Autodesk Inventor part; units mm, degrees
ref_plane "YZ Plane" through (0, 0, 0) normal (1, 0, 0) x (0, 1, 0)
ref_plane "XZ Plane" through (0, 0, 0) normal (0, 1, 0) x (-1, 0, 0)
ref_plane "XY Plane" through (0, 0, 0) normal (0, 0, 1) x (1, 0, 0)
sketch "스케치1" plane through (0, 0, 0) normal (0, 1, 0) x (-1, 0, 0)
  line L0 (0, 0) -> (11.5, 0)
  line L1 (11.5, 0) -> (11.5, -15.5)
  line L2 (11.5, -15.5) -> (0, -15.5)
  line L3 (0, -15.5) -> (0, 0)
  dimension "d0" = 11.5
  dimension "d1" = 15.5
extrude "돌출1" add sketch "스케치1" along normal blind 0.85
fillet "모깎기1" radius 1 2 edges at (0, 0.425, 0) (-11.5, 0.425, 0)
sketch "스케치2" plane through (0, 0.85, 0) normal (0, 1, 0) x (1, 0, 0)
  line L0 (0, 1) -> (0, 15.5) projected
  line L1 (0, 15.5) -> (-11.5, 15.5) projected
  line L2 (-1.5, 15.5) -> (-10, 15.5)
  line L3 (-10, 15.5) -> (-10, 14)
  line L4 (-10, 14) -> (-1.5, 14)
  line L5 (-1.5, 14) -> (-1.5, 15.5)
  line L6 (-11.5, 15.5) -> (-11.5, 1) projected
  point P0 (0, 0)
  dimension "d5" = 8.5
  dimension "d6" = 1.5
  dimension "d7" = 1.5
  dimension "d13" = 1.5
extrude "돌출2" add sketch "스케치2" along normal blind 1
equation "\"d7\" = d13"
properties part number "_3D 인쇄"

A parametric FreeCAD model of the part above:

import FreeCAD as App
import Part
import Sketcher
from FreeCAD import Vector


def edges_at(feature, points):
    """Names of the edges that pass closest to the given points."""
    edges = feature.Shape.Edges
    near = lambda p: min(range(len(edges)), key=lambda i: edges[i].distToShape(Part.Vertex(*p))[0])
    return sorted({f"Edge{near(p) + 1}" for p in points})


def add_polygon(sketch, points):
    """Adds a closed chain of lines whose ends are joined by coincident constraints."""
    first, n = sketch.GeometryCount, len(points)
    for a, b in zip(points, points[1:] + points[:1]):
        sketch.addGeometry(Part.LineSegment(App.Vector(*a, 0), App.Vector(*b, 0)), False)
    for i in range(n):
        sketch.addConstraint(Sketcher.Constraint("Coincident", first + i, 2, first + (i + 1) % n, 1))

doc = App.newDocument("Part")
body = doc.addObject("PartDesign::Body", "Body")

# Sketch on XZ plane
sketch1 = doc.addObject("Sketcher::SketchObject", "Sketch")
body.addObject(sketch1)
sketch1.AttachmentSupport = (doc.XZ_Plane, [""])
sketch1.MapMode = "FlatFace"
add_polygon(sketch1, [(-12, 0), (0, 0), (0, -16), (-12, -16)])  # lines 0-3
sketch1.addConstraint([
    Sketcher.Constraint("Horizontal", 0),
    Sketcher.Constraint("Vertical", 1),
    Sketcher.Constraint("Horizontal", 2),
    Sketcher.Constraint("Vertical", 3),
    Sketcher.Constraint("Coincident", 0, 2, -1, 1),
    Sketcher.Constraint("DistanceX", 0, 1, 0, 2, 11.5),
    Sketcher.Constraint("DistanceY", 1, 2, 1, 1, 15.5),
])
pad1 = doc.addObject("PartDesign::Pad", "Pad")
body.addObject(pad1)
pad1.Profile = sketch1
pad1.Length = 0.85
pad1.Reversed = True
doc.recompute()

fillet = doc.addObject("PartDesign::Fillet", "Fillet")
body.addObject(fillet)
fillet.Base = (pad1, edges_at(pad1, [(0, 0.425, 0), (-11.5, 0.425, 0)]))
fillet.Radius = 1

# Sketch on XZ plane
sketch2 = doc.addObject("Sketcher::SketchObject", "Sketch001")
body.addObject(sketch2)
sketch2.AttachmentSupport = (doc.XZ_Plane, [""])
sketch2.MapMode = "FlatFace"
sketch2.AttachmentOffset = App.Placement(Vector(0, 0, -0.85), App.Rotation())
add_polygon(sketch2, [(-1.5, -14), (-1.5, -15.5), (-10, -15.5), (-10, -14)])  # lines 0-3
sketch2.addConstraint([
    Sketcher.Constraint("Vertical", 0),
    Sketcher.Constraint("Horizontal", 1),
    Sketcher.Constraint("Vertical", 2),
    Sketcher.Constraint("Horizontal", 3),
    Sketcher.Constraint("DistanceX", 1, 2, 1, 1, 8.5),
    Sketcher.Constraint("DistanceY", 0, 2, 0, 1, 1.5),
    Sketcher.Constraint("DistanceX", 0, 2, -1, 1, 1.5),
    Sketcher.Constraint("DistanceY", 2, 2, -1, 1, 14.0),
])
pad2 = doc.addObject("PartDesign::Pad", "Pad001")
body.addObject(pad2)
pad2.Profile = sketch2
pad2.Length = 1
pad2.Reversed = True

doc.recompute()
